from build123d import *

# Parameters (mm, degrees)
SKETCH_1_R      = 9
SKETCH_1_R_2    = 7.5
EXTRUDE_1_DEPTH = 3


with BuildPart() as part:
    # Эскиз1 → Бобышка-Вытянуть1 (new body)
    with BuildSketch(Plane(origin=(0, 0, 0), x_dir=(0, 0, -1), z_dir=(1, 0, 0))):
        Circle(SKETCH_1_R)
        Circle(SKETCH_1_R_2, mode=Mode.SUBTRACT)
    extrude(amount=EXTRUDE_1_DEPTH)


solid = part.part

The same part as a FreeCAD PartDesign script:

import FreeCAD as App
import Part
import Sketcher

V = App.Vector

doc = App.newDocument("Part")
params = doc.addObject("Spreadsheet::Sheet", "Params")
for row, (alias, value) in enumerate([
    ("sketch1_diameter", "18 mm"),
    ("sketch1_diameter2", "15 mm"),
    ("pad1_length", "3 mm"),
], start=1):
    params.set(f"A{row}", alias)
    params.set(f"B{row}", "=" + value)
    params.setAlias(f"B{row}", alias)

body = doc.addObject("PartDesign::Body", "Body")

# Sketch on YZ plane
sketch1 = body.newObject("Sketcher::SketchObject", "Sketch")
sketch1.AttachmentSupport = (doc.getObject("YZ_Plane"), [""])
sketch1.MapMode = "FlatFace"
sketch1.addGeometry(Part.Circle(V(0, 0, 0), V(0, 0, 1), 9), False)
sketch1.addGeometry(Part.Circle(V(0, 0, 0), V(0, 0, 1), 7.5), False)
sketch1.addConstraint(Sketcher.Constraint("Coincident", 0, 3, -1, 1))
sketch1.addConstraint(Sketcher.Constraint("Coincident", 1, 3, -1, 1))
sketch1.addConstraint(Sketcher.Constraint("Diameter", 0, 18.0))
sketch1.addConstraint(Sketcher.Constraint("Diameter", 1, 15.0))
sketch1.setExpression("Constraints[2]", "Params.sketch1_diameter")
sketch1.setExpression("Constraints[3]", "Params.sketch1_diameter2")
pad1 = body.newObject("PartDesign::Pad", "Pad")
pad1.Profile = sketch1
pad1.setExpression("Length", "Params.pad1_length")

doc.recompute()
